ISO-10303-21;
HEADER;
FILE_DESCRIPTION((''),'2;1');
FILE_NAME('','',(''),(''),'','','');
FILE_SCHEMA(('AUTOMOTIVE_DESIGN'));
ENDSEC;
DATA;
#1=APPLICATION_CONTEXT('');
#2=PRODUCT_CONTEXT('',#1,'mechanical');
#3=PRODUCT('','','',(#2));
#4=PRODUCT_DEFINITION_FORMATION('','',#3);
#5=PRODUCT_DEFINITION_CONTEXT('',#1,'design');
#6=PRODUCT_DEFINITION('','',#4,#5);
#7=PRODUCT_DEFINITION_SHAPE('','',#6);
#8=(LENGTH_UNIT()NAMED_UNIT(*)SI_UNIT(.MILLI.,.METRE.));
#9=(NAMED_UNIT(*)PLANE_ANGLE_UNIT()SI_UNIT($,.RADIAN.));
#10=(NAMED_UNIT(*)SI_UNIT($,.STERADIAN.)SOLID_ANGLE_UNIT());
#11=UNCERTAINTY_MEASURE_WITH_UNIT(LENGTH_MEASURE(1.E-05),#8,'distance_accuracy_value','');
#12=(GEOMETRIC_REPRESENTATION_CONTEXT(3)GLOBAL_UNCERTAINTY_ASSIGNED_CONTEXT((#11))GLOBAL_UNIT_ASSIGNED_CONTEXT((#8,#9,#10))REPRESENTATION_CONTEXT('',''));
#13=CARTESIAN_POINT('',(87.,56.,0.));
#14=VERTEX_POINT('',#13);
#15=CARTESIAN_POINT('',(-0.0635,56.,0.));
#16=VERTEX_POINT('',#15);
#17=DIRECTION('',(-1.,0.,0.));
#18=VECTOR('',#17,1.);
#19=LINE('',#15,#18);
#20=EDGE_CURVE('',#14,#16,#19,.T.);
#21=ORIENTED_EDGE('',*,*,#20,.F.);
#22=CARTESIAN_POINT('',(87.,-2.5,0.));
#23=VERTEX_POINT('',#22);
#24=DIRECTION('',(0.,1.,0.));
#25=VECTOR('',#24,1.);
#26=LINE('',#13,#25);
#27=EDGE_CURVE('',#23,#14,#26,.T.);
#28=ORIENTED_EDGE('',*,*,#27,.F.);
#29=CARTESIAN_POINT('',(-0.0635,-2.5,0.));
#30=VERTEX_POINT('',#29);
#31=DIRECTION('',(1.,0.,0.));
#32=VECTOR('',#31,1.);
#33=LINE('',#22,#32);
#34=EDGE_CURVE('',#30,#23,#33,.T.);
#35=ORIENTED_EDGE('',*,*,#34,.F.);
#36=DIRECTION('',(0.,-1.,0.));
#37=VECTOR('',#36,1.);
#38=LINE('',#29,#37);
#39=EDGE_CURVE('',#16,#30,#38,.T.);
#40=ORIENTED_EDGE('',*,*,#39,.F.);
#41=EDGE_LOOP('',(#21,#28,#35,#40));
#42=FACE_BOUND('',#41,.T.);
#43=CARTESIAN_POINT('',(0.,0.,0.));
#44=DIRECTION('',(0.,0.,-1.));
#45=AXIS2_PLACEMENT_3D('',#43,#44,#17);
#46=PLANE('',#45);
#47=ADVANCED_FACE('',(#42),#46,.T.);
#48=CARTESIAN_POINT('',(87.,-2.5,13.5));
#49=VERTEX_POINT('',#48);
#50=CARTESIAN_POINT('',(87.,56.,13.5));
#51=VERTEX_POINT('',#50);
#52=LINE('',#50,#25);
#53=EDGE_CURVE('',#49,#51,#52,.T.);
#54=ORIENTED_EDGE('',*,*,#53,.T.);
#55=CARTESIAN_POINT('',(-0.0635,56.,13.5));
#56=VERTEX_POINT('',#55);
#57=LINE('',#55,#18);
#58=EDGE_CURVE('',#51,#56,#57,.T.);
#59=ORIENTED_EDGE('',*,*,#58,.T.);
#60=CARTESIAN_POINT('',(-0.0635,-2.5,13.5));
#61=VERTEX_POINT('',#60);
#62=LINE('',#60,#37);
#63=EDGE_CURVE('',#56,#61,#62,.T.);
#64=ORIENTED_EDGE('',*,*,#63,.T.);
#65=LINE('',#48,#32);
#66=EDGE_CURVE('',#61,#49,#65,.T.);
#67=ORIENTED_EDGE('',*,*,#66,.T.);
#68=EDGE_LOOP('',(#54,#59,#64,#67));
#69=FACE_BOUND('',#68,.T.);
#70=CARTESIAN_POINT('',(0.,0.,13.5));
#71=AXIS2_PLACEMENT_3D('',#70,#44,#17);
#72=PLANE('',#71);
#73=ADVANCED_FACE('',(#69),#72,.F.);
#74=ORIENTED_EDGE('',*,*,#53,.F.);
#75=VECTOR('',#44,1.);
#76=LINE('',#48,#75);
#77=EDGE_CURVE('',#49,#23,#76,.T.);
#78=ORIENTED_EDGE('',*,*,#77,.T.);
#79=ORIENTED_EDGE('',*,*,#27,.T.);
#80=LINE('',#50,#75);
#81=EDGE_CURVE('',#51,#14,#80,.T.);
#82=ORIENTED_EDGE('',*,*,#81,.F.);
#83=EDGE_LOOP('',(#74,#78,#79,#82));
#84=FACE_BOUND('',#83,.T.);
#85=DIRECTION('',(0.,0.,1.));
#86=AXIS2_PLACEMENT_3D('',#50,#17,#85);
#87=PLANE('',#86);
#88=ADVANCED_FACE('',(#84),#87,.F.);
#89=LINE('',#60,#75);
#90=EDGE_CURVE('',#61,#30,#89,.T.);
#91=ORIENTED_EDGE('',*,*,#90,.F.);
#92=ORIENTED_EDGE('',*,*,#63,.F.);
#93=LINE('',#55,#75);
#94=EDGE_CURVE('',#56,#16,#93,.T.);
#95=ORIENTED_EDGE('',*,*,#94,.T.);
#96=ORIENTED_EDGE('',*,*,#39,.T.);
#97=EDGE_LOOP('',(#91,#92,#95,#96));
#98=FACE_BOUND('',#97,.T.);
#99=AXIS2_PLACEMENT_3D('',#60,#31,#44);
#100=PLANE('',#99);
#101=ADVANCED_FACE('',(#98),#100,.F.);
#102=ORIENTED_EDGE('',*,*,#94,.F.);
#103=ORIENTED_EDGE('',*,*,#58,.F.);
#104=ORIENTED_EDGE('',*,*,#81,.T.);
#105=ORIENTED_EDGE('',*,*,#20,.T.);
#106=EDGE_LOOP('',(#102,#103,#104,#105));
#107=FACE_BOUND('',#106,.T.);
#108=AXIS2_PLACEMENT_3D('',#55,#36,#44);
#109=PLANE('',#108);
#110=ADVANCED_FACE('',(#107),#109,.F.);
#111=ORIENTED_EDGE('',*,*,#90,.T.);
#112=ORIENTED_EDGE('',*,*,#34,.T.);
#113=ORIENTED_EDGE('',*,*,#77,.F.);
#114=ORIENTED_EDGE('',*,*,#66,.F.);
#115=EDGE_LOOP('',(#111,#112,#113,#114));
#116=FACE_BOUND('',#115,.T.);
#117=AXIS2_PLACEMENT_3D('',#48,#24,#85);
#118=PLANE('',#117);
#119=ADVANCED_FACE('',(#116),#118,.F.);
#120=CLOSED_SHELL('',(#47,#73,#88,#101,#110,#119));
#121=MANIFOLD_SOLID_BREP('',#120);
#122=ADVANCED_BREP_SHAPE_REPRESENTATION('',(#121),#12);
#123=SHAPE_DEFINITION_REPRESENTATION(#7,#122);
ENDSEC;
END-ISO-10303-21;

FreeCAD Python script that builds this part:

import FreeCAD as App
import Part
import Sketcher
from FreeCAD import Vector
Q = App.Units.Quantity


def add_polygon(sketch, points):
    """Adds a closed chain of lines whose ends are joined by coincident constraints."""
    first, n = sketch.GeometryCount, len(points)
    for a, b in zip(points, points[1:] + points[:1]):
        sketch.addGeometry(Part.LineSegment(App.Vector(*a, 0), App.Vector(*b, 0)), False)
    for i in range(n):
        sketch.addConstraint(Sketcher.Constraint("Coincident", first + i, 2, first + (i + 1) % n, 1))

doc = App.newDocument("Part")
body = doc.addObject("PartDesign::Body", "Body")

# Sketch on XY plane
sketch1 = body.newObject("Sketcher::SketchObject", "Sketch")
sketch1.AttachmentSupport = (doc.getObject("XY_Plane"), [""])
sketch1.MapMode = "FlatFace"
add_polygon(sketch1, [(0, 56), (0, -2), (87, -2), (87, 56)])  # lines 0-3
sketch1.addConstraint([
    Sketcher.Constraint("Vertical", 0),
    Sketcher.Constraint("Horizontal", 1),
    Sketcher.Constraint("Vertical", 2),
    Sketcher.Constraint("Horizontal", 3),
    Sketcher.Constraint("DistanceY", 0, 2, 0, 1, Q("58.5 mm")),
    Sketcher.Constraint("DistanceX", -1, 1, 1, 2, Q("87 mm")),
    Sketcher.Constraint("DistanceY", -1, 1, 2, 2, Q("56 mm")),
    Sketcher.Constraint("DistanceX", 1, 1, 1, 2, Q("87.0635 mm")),
])
pad1 = body.newObject("PartDesign::Pad", "Pad")
pad1.Profile = sketch1
pad1.Length = 13.5

doc.recompute()
